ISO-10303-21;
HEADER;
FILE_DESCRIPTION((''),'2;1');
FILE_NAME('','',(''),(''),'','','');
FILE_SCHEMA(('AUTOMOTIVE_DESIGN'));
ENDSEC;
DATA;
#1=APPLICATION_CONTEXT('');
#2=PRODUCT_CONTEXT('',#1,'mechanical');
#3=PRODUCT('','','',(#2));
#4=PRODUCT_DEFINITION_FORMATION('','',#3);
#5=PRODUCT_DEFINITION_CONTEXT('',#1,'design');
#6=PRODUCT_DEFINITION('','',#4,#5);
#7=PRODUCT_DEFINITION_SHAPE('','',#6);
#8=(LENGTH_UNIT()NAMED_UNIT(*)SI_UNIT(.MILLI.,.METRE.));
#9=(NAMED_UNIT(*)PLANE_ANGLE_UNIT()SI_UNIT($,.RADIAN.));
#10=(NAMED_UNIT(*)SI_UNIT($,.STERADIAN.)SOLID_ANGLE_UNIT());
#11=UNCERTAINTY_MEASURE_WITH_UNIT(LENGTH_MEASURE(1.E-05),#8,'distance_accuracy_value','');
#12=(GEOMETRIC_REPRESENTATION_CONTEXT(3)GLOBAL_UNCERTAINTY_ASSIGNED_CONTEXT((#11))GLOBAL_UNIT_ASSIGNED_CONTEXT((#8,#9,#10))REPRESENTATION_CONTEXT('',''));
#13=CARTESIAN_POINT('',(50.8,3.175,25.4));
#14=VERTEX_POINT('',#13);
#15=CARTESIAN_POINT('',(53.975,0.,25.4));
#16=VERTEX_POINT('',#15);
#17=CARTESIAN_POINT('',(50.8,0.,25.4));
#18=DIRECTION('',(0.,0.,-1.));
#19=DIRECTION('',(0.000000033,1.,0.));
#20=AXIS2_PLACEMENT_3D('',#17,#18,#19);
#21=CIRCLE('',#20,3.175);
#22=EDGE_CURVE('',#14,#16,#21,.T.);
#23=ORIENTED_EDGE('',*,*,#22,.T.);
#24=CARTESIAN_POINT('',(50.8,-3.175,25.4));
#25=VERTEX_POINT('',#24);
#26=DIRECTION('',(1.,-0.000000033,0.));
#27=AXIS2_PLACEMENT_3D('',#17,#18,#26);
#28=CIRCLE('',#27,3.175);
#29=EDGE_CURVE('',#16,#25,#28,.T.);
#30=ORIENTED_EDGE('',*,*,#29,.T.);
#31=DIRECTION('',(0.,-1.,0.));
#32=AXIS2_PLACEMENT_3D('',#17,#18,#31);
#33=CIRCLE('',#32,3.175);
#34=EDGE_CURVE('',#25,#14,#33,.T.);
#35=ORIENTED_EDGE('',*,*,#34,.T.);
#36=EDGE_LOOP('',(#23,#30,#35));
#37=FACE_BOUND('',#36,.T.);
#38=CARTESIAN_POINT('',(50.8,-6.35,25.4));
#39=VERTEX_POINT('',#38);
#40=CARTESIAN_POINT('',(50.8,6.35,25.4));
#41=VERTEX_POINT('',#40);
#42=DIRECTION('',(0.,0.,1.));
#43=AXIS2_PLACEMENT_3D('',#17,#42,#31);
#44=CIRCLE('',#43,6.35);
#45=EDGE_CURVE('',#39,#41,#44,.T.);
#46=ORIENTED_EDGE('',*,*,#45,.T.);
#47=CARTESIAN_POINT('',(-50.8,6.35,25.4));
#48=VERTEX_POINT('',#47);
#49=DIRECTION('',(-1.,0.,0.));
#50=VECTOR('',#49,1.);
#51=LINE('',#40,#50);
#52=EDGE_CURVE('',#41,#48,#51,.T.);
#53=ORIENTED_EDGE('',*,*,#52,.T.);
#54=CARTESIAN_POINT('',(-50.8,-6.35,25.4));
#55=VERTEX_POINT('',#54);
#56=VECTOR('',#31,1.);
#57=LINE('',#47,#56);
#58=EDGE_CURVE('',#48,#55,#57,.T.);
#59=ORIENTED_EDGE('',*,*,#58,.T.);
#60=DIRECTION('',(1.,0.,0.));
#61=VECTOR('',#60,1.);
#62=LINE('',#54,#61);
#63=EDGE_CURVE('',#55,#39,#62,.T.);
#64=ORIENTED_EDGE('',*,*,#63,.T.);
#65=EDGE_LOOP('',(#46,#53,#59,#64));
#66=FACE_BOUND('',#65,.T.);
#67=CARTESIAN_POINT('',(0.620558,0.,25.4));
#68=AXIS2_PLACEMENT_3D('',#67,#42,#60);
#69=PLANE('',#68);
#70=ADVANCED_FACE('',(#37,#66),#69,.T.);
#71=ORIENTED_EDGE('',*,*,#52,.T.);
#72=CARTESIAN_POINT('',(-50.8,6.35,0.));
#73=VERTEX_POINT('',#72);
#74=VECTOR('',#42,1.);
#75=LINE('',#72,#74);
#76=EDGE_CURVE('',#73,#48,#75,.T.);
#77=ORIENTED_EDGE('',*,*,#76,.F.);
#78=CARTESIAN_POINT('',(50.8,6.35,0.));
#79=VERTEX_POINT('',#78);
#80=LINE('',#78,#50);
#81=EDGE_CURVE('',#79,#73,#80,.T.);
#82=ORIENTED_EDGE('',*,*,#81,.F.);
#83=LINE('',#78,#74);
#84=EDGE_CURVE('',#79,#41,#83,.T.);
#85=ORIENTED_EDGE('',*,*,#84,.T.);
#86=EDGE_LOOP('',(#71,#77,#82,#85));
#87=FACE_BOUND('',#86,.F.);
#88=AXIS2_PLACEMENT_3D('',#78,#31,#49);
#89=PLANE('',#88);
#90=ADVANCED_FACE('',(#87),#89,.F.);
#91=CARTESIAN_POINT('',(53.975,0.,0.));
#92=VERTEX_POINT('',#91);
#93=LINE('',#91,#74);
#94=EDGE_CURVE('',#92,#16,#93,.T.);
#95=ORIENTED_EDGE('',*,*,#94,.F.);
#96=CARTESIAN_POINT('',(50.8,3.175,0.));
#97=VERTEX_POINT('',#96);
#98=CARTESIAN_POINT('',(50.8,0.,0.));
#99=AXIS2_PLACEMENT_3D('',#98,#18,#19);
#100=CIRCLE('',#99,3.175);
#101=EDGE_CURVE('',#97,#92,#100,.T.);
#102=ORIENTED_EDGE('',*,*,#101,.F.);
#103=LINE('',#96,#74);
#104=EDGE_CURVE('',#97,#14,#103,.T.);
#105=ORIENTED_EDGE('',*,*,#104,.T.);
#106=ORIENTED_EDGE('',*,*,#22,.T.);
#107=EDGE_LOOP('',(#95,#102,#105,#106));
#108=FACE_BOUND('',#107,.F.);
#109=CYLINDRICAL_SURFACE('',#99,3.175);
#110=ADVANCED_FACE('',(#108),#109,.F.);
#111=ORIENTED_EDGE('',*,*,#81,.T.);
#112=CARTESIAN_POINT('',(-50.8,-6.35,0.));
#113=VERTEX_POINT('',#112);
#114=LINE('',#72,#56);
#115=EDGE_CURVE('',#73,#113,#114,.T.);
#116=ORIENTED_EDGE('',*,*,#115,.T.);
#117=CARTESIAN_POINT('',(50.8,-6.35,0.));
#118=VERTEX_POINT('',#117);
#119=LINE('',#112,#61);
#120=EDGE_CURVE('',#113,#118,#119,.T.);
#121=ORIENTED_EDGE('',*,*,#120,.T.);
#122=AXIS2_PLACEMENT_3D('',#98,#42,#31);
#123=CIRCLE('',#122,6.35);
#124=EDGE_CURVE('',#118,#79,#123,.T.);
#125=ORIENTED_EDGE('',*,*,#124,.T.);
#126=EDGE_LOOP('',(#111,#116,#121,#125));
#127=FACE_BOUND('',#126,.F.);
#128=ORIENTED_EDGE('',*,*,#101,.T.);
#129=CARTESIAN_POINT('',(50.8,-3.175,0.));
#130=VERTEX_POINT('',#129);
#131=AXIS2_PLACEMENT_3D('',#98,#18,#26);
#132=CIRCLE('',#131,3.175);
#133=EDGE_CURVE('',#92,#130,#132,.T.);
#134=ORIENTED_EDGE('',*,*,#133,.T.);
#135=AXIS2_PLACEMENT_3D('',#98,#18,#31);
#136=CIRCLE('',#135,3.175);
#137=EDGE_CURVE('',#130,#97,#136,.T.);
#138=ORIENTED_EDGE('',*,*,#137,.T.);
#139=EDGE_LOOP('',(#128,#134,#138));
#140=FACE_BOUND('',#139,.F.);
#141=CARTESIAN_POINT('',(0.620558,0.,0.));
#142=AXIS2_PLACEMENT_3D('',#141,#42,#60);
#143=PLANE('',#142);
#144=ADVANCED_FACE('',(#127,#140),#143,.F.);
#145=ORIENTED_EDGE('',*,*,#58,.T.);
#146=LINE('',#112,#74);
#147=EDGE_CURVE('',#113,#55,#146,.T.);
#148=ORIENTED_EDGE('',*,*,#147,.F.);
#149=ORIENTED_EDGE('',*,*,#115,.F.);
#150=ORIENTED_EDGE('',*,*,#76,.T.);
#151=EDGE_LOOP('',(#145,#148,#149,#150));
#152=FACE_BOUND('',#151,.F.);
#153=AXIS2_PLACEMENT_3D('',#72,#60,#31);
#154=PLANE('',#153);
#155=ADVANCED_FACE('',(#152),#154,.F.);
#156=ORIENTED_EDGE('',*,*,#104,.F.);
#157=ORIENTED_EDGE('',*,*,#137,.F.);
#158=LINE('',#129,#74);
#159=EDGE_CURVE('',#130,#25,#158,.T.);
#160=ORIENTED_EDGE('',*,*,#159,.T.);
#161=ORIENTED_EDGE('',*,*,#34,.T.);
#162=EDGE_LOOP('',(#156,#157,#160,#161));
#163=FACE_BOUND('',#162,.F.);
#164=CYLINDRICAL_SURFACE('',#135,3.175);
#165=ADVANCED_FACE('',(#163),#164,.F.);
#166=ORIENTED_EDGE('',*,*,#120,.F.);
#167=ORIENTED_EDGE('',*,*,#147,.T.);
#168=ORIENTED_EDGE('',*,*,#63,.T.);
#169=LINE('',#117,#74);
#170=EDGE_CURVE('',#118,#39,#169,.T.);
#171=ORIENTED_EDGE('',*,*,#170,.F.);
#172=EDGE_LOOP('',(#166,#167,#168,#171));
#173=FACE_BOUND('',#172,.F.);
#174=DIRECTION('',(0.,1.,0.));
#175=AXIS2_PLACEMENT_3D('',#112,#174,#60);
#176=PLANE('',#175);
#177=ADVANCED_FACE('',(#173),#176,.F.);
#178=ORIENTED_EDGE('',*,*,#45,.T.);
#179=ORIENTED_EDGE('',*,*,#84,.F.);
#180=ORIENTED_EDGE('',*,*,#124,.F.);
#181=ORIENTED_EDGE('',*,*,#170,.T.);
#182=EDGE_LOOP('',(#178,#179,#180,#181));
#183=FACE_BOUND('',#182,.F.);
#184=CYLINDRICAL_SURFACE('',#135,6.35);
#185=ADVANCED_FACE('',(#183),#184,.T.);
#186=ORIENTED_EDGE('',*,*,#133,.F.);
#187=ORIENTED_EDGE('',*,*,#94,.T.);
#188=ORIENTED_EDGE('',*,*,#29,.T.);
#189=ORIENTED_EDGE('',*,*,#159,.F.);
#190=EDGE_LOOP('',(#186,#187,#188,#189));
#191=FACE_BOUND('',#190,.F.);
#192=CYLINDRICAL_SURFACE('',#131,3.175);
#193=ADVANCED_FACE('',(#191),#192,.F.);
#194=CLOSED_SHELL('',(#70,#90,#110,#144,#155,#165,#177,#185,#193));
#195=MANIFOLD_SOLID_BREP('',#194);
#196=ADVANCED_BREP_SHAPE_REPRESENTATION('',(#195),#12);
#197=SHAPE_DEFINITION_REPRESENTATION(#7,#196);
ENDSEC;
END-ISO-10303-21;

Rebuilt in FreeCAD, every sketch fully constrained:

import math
import FreeCAD as App
import Part
import Sketcher
from FreeCAD import Vector
Q = App.Units.Quantity

doc = App.newDocument("Part")
body = doc.addObject("PartDesign::Body", "Body")

# Sketch on XY plane
sketch1 = body.newObject("Sketcher::SketchObject", "Sketch")
sketch1.AttachmentSupport = (doc.getObject("XY_Plane"), [""])
sketch1.MapMode = "FlatFace"
sketch1.addGeometry([
    Part.LineSegment(Vector(50.8, 6.3, 0), Vector(-50.8, 6.3, 0)),  # 0
    Part.LineSegment(Vector(-50.8, 6.3, 0), Vector(-50.8, -6.3, 0)),  # 1
    Part.LineSegment(Vector(-50.8, -6.3, 0), Vector(50.8, -6.3, 0)),  # 2
    Part.ArcOfCircle(Part.Circle(Vector(50.8, 0, 0), Vector(0, 0, 1), 6.3), math.radians(-90), math.radians(90)),  # 3
    Part.ArcOfCircle(Part.Circle(Vector(50.8, 0, 0), Vector(0, 0, 1), 3.2), math.radians(90), math.radians(270)),  # 4
    Part.ArcOfCircle(Part.Circle(Vector(50.8, 0, 0), Vector(0, 0, 1), 3.2), math.radians(0), math.radians(90)),  # 5
    Part.ArcOfCircle(Part.Circle(Vector(50.8, 0, 0), Vector(0, 0, 1), 3.2), math.radians(-90), math.radians(0)),  # 6
], False)
sketch1.addConstraint([
    Sketcher.Constraint("Coincident", 0, 2, 1, 1),
    Sketcher.Constraint("Coincident", 1, 2, 2, 1),
    Sketcher.Constraint("Tangent", 2, 2, 3, 1),
    Sketcher.Constraint("Tangent", 3, 2, 0, 1),
    Sketcher.Constraint("Tangent", 4, 1, 5, 2),
    Sketcher.Constraint("Tangent", 5, 1, 6, 2),
    Sketcher.Constraint("Tangent", 6, 1, 4, 2),
    Sketcher.Constraint("Horizontal", 0),
    Sketcher.Constraint("Vertical", 1),
    Sketcher.Constraint("Horizontal", 2),
    Sketcher.Constraint("Coincident", 4, 3, 3, 3),
    Sketcher.Constraint("Symmetric", 0, 2, 2, 2, -1, 1),
    Sketcher.Constraint("PointOnObject", 5, 1, -1),
    Sketcher.Constraint("Vertical", 3, 2, 4, 1),
    Sketcher.Constraint("Vertical", 4, 1, 6, 1),
    Sketcher.Constraint("DistanceX", 0, 2, 0, 1, Q("4 in")),
    Sketcher.Constraint("Radius", 3, Q("0.25 in")),
    Sketcher.Constraint("Radius", 4, Q("0.125 in")),
])
pad1 = body.newObject("PartDesign::Pad", "Pad")
pad1.Profile = sketch1
pad1.Length = Q("1 in")

doc.recompute()
